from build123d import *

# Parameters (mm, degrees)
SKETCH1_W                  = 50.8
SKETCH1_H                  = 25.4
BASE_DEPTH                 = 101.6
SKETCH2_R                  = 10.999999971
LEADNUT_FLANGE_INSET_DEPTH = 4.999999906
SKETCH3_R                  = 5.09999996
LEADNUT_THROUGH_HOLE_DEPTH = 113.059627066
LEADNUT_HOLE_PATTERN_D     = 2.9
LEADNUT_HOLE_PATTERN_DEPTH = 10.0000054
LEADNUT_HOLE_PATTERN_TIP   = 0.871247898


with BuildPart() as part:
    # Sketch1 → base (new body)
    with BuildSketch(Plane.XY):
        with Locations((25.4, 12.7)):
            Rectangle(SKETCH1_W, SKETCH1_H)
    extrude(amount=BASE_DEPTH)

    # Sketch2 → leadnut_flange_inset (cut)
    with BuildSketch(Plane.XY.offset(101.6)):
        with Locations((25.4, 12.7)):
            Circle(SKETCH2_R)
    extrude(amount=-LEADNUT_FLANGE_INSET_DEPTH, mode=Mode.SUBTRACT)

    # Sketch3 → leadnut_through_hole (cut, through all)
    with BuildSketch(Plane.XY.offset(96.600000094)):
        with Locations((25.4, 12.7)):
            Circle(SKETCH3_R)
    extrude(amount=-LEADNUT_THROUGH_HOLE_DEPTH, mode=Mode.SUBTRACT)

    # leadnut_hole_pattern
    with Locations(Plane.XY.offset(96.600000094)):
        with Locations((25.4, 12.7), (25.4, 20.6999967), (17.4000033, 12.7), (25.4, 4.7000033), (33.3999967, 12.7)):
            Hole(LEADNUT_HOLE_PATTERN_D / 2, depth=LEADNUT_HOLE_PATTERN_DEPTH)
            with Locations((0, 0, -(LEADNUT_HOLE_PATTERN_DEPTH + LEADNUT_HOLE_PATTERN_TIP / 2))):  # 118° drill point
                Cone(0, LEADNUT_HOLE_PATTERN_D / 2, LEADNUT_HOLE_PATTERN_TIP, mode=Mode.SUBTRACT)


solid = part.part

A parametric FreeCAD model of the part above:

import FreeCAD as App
import Part
import Sketcher
from FreeCAD import Vector


def add_polygon(sketch, points):
    """Adds a closed chain of lines whose ends are joined by coincident constraints."""
    first, n = sketch.GeometryCount, len(points)
    for a, b in zip(points, points[1:] + points[:1]):
        sketch.addGeometry(Part.LineSegment(App.Vector(*a, 0), App.Vector(*b, 0)), False)
    for i in range(n):
        sketch.addConstraint(Sketcher.Constraint("Coincident", first + i, 2, first + (i + 1) % n, 1))

doc = App.newDocument("Part")
body = doc.addObject("PartDesign::Body", "Body")

sketch1 = body.newObject("Sketcher::SketchObject", "Sketch")
sketch1.AttachmentSupport = (doc.getObject("XY_Plane"), [""])
sketch1.MapMode = "FlatFace"
add_polygon(sketch1, [(0, 25), (0, 0), (51, 0), (51, 25)])
sketch1.addConstraint([
    Sketcher.Constraint("Vertical", 0),
    Sketcher.Constraint("Horizontal", 1),
    Sketcher.Constraint("Vertical", 2),
    Sketcher.Constraint("Horizontal", 3),
    Sketcher.Constraint("Coincident", 0, 2, -1, 1),
    Sketcher.Constraint("DistanceX", 1, 1, 1, 2, 50.8),
    Sketcher.Constraint("DistanceY", 0, 2, 0, 1, 25.4),
])
pad1 = body.newObject("PartDesign::Pad", "Pad")
pad1.Profile = sketch1
pad1.Length = 101.6

sketch2 = body.newObject("Sketcher::SketchObject", "Sketch001")
sketch2.AttachmentSupport = (doc.getObject("XY_Plane"), [""])
sketch2.MapMode = "FlatFace"
sketch2.AttachmentOffset = App.Placement(Vector(0, 0, 101.6), App.Rotation())
sketch2.addGeometry(Part.Circle(Vector(25, 13, 0), Vector(0, 0, 1), 11), False)
sketch2.addConstraint([
    Sketcher.Constraint("Diameter", 0, 22.0),
    Sketcher.Constraint("DistanceX", -1, 1, 0, 3, 25.4),
    Sketcher.Constraint("DistanceY", -1, 1, 0, 3, 12.7),
])
pocket1 = body.newObject("PartDesign::Pocket", "Pocket")
pocket1.Profile = sketch2
pocket1.Length = 5

sketch3 = body.newObject("Sketcher::SketchObject", "Sketch002")
sketch3.AttachmentSupport = (doc.getObject("XY_Plane"), [""])
sketch3.MapMode = "FlatFace"
sketch3.AttachmentOffset = App.Placement(Vector(0, 0, 96.6), App.Rotation())
sketch3.addGeometry(Part.Circle(Vector(25, 13, 0), Vector(0, 0, 1), 5), False)
sketch3.addConstraint([
    Sketcher.Constraint("Diameter", 0, 10.2),
    Sketcher.Constraint("DistanceX", -1, 1, 0, 3, 25.4),
    Sketcher.Constraint("DistanceY", -1, 1, 0, 3, 12.7),
])
pocket2 = body.newObject("PartDesign::Pocket", "Pocket001")
pocket2.Profile = sketch3
pocket2.Type = "ThroughAll"

sketch4 = body.newObject("Sketcher::SketchObject", "Sketch003")
sketch4.AttachmentSupport = (doc.getObject("XY_Plane"), [""])
sketch4.MapMode = "FlatFace"
sketch4.AttachmentOffset = App.Placement(Vector(0, 0, 96.6), App.Rotation())
sketch4.addGeometry([
    Part.Circle(Vector(25.4, 12.7, 0), Vector(0, 0, 1), 1.4),
    Part.Circle(Vector(25.4, 20.7, 0), Vector(0, 0, 1), 1.4),
    Part.Circle(Vector(17.4, 12.7, 0), Vector(0, 0, 1), 1.4),
    Part.Circle(Vector(25.4, 4.7, 0), Vector(0, 0, 1), 1.4),
    Part.Circle(Vector(33.4, 12.7, 0), Vector(0, 0, 1), 1.4),
], False)
sketch4.addConstraint([
    Sketcher.Constraint("Equal", 0, 1),
    Sketcher.Constraint("Equal", 1, 2),
    Sketcher.Constraint("Equal", 2, 3),
    Sketcher.Constraint("Equal", 3, 4),
    Sketcher.Constraint("Horizontal", 0, 3, 2, 3),
    Sketcher.Constraint("Horizontal", 2, 3, 4, 3),
    Sketcher.Constraint("Vertical", 0, 3, 1, 3),
    Sketcher.Constraint("Vertical", 1, 3, 3, 3),
    Sketcher.Constraint("Diameter", 0, 2.9),
    Sketcher.Constraint("DistanceX", -1, 1, 0, 3, 25.4),
    Sketcher.Constraint("DistanceY", -1, 1, 0, 3, 12.7),
    Sketcher.Constraint("DistanceY", -1, 1, 1, 3, 20.699997),
    Sketcher.Constraint("DistanceX", -1, 1, 2, 3, 17.400003),
    Sketcher.Constraint("DistanceY", -1, 1, 3, 3, 4.700003),
    Sketcher.Constraint("DistanceX", -1, 1, 4, 3, 33.399997),
])
doc.recompute()
hole = body.newObject("PartDesign::Hole", "Hole")
hole.Profile = sketch4
hole.ThreadType = "None"
hole.Diameter = 2.9
hole.DepthType = "Dimension"
hole.Depth = 10.000005
hole.DrillPoint = "Angled"
hole.DrillPointAngle = 118

doc.recompute()
